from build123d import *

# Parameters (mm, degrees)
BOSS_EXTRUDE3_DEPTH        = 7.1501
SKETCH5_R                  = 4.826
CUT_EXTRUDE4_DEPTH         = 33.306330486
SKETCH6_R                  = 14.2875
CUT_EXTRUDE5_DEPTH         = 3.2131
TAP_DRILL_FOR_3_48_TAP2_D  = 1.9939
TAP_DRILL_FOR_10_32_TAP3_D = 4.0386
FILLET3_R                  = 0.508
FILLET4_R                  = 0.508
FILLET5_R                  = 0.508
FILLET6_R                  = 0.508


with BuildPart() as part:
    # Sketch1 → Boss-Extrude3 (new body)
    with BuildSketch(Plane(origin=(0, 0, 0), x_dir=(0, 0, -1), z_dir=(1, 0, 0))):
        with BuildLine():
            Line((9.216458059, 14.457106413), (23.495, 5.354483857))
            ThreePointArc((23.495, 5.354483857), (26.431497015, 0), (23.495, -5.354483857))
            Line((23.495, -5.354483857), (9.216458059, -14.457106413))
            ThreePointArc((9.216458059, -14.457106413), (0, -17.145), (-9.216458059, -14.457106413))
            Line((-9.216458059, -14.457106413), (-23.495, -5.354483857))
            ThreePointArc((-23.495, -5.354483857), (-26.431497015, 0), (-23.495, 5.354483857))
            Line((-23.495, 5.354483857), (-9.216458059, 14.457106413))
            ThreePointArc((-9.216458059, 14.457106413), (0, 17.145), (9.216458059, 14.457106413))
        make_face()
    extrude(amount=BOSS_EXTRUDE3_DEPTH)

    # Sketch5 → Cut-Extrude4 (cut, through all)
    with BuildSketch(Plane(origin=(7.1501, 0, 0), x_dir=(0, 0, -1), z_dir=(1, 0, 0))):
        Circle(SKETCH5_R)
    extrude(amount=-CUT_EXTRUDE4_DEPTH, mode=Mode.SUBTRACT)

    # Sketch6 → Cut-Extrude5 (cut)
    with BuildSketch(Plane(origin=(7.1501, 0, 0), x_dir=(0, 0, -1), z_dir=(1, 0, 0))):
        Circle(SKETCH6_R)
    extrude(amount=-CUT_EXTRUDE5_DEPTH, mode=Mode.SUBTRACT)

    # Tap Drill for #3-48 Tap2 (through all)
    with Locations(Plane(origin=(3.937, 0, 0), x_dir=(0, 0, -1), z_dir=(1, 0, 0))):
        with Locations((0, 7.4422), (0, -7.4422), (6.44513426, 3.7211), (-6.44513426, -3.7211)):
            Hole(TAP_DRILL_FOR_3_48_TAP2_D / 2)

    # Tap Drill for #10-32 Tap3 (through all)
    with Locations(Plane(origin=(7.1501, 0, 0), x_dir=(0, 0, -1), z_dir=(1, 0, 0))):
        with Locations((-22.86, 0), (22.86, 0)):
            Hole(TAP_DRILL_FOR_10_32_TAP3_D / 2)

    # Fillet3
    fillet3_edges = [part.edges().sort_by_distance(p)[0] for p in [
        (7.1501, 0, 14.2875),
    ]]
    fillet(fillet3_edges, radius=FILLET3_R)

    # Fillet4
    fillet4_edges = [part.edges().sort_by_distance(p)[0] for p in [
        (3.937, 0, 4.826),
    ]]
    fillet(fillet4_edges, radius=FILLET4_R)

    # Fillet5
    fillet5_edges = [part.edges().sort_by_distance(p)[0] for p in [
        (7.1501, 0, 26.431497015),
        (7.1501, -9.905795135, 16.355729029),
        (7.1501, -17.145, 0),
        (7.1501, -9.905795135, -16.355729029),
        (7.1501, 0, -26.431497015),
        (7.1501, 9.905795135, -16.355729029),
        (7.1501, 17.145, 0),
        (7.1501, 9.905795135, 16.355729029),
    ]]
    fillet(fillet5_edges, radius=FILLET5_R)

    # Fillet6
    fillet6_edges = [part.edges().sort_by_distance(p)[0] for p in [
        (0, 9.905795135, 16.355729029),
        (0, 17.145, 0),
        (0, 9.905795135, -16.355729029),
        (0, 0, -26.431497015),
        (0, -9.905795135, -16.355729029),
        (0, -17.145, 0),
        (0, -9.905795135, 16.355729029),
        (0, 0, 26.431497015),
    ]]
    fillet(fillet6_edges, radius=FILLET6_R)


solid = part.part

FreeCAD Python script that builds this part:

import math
import FreeCAD as App
import Part
import Sketcher
from FreeCAD import Vector
Q = App.Units.Quantity


def edges_at(feature, points):
    """Names of the edges that pass closest to the given points."""
    edges = feature.Shape.Edges
    near = lambda p: min(range(len(edges)), key=lambda i: edges[i].distToShape(Part.Vertex(*p))[0])
    return sorted({f"Edge{near(p) + 1}" for p in points})

doc = App.newDocument("Part")
body = doc.addObject("PartDesign::Body", "Body")

sketch1 = body.newObject("Sketcher::SketchObject", "Sketch")
sketch1.AttachmentSupport = (doc.getObject("YZ_Plane"), [""])
sketch1.MapMode = "FlatFace"
sketch1.addGeometry([
    Part.LineSegment(Vector(5, -23, 0), Vector(14, -9, 0)),
    Part.ArcOfCircle(Part.Circle(Vector(0, 0, 0), Vector(0, 0, 1), 17), math.radians(-33), math.radians(33)),
    Part.LineSegment(Vector(14, 9, 0), Vector(5, 23, 0)),
    Part.ArcOfCircle(Part.Circle(Vector(0, 20, 0), Vector(0, 0, 1), 6), math.radians(33), math.radians(147)),
    Part.LineSegment(Vector(-5, 23, 0), Vector(-14, 9, 0)),
    Part.ArcOfCircle(Part.Circle(Vector(0, 0, 0), Vector(0, 0, 1), 17), math.radians(147), math.radians(213)),
    Part.LineSegment(Vector(-14, -9, 0), Vector(-5, -23, 0)),
    Part.ArcOfCircle(Part.Circle(Vector(0, -20, 0), Vector(0, 0, 1), 6), math.radians(-147), math.radians(-33)),
], False)
sketch1.addConstraint([
    Sketcher.Constraint("Tangent", 0, 2, 1, 1),
    Sketcher.Constraint("Tangent", 1, 2, 2, 1),
    Sketcher.Constraint("Tangent", 2, 2, 3, 1),
    Sketcher.Constraint("Tangent", 3, 2, 4, 1),
    Sketcher.Constraint("Tangent", 4, 2, 5, 1),
    Sketcher.Constraint("Tangent", 5, 2, 6, 1),
    Sketcher.Constraint("Tangent", 6, 2, 7, 1),
    Sketcher.Constraint("Tangent", 7, 2, 0, 1),
    Sketcher.Constraint("Coincident", 1, 3, -1, 1),
    Sketcher.Constraint("Coincident", 5, 3, -1, 1),
    Sketcher.Constraint("Equal", 1, 5),
    Sketcher.Constraint("Equal", 3, 7),
    Sketcher.Constraint("Symmetric", 3, 3, 7, 3, -1, 1),
    Sketcher.Constraint("PointOnObject", 3, 3, -2),
    Sketcher.Constraint("Radius", 3, Q("0.25 in")),
    Sketcher.Constraint("Radius", 1, Q("0.675 in")),
    Sketcher.Constraint("DistanceY", -1, 1, 2, 2, Q("0.925 in")),
])
pad1 = body.newObject("PartDesign::Pad", "Pad")
pad1.Profile = sketch1
pad1.Length = Q("0.2815 in")

sketch2 = body.newObject("Sketcher::SketchObject", "Sketch001")
sketch2.AttachmentSupport = (doc.getObject("YZ_Plane"), [""])
sketch2.MapMode = "FlatFace"
sketch2.AttachmentOffset = App.Placement(Vector(0, 0, 0.2815 * 25.4), App.Rotation())
sketch2.addGeometry(Part.Circle(Vector(0, 0, 0), Vector(0, 0, 1), 4.8), False)
sketch2.addConstraint([
    Sketcher.Constraint("Coincident", 0, 3, -1, 1),
    Sketcher.Constraint("Diameter", 0, Q("0.38 in")),
])
pocket1 = body.newObject("PartDesign::Pocket", "Pocket")
pocket1.Profile = sketch2
pocket1.Type = "ThroughAll"

sketch3 = body.newObject("Sketcher::SketchObject", "Sketch002")
sketch3.AttachmentSupport = (doc.getObject("YZ_Plane"), [""])
sketch3.MapMode = "FlatFace"
sketch3.AttachmentOffset = App.Placement(Vector(0, 0, 0.2815 * 25.4), App.Rotation())
sketch3.addGeometry(Part.Circle(Vector(0, 0, 0), Vector(0, 0, 1), 14), False)
sketch3.addConstraint([
    Sketcher.Constraint("Coincident", 0, 3, -1, 1),
    Sketcher.Constraint("Diameter", 0, Q("1.125 in")),
])
pocket2 = body.newObject("PartDesign::Pocket", "Pocket001")
pocket2.Profile = sketch3
pocket2.Length = Q("0.1265 in")

sketch4 = body.newObject("Sketcher::SketchObject", "Sketch003")
sketch4.AttachmentSupport = (doc.getObject("YZ_Plane"), [""])
sketch4.MapMode = "FlatFace"
sketch4.AttachmentOffset = App.Placement(Vector(0, 0, 0.155 * 25.4), App.Rotation())
sketch4.addGeometry([
    Part.Circle(Vector(7.4, 0, 0), Vector(0, 0, 1), 1),
    Part.Circle(Vector(-7.4, 0, 0), Vector(0, 0, 1), 1),
    Part.Circle(Vector(3.7, -6.4, 0), Vector(0, 0, 1), 1),
    Part.Circle(Vector(-3.7, 6.4, 0), Vector(0, 0, 1), 1),
], False)
sketch4.addConstraint([
    Sketcher.Constraint("Equal", 0, 1),
    Sketcher.Constraint("Equal", 1, 2),
    Sketcher.Constraint("Equal", 2, 3),
    Sketcher.Constraint("Symmetric", 0, 3, 1, 3, -1, 1),
    Sketcher.Constraint("Symmetric", 2, 3, 3, 3, -1, 1),
    Sketcher.Constraint("PointOnObject", 0, 3, -1),
    Sketcher.Constraint("Diameter", 0, Q("0.0785 in")),
    Sketcher.Constraint("DistanceX", -1, 1, 0, 3, Q("0.293 in")),
    Sketcher.Constraint("DistanceX", 3, 3, 2, 3, Q("0.293 in")),
    Sketcher.Constraint("DistanceY", 2, 3, 3, 3, 12.890269),
])
doc.recompute()
hole = body.newObject("PartDesign::Hole", "Hole")
hole.Profile = sketch4
hole.ThreadType = "None"
hole.Diameter = Q("0.0785 in")
hole.DepthType = "ThroughAll"

sketch5 = body.newObject("Sketcher::SketchObject", "Sketch004")
sketch5.AttachmentSupport = (doc.getObject("YZ_Plane"), [""])
sketch5.MapMode = "FlatFace"
sketch5.AttachmentOffset = App.Placement(Vector(0, 0, 0.2815 * 25.4), App.Rotation())
sketch5.addGeometry([
    Part.Circle(Vector(0, 22.9, 0), Vector(0, 0, 1), 2),
    Part.Circle(Vector(0, -22.9, 0), Vector(0, 0, 1), 2),
], False)
sketch5.addConstraint([
    Sketcher.Constraint("Equal", 0, 1),
    Sketcher.Constraint("Symmetric", 0, 3, 1, 3, -1, 1),
    Sketcher.Constraint("PointOnObject", 0, 3, -2),
    Sketcher.Constraint("Diameter", 0, Q("0.159 in")),
    Sketcher.Constraint("DistanceY", -1, 1, 0, 3, Q("0.9 in")),
])
doc.recompute()
hole2 = body.newObject("PartDesign::Hole", "Hole001")
hole2.Profile = sketch5
hole2.ThreadType = "None"
hole2.Diameter = Q("0.159 in")
hole2.DepthType = "ThroughAll"
doc.recompute()

fillet = body.newObject("PartDesign::Fillet", "Fillet")
fillet.Base = (hole2, edges_at(hole2, [(7.15, 0, 14.287)]))
fillet.Radius = Q("0.02 in")
doc.recompute()

fillet2 = body.newObject("PartDesign::Fillet", "Fillet001")
fillet2.Base = (fillet, edges_at(fillet, [(3.937, 0, 4.826)]))
fillet2.Radius = Q("0.02 in")
doc.recompute()

fillet3 = body.newObject("PartDesign::Fillet", "Fillet002")
fillet3.Base = (fillet2, edges_at(fillet2, [
    (7.15, 0, 26.431),
    (7.15, -9.906, 16.356),
    (7.15, -17.145, 0),
    (7.15, -9.906, -16.356),
    (7.15, 0, -26.431),
    (7.15, 9.906, -16.356),
    (7.15, 17.145, 0),
    (7.15, 9.906, 16.356),
]))
fillet3.Radius = Q("0.02 in")
doc.recompute()

fillet4 = body.newObject("PartDesign::Fillet", "Fillet003")
fillet4.Base = (fillet3, edges_at(fillet3, [
    (0, 9.906, 16.356),
    (0, 17.145, 0),
    (0, 9.906, -16.356),
    (0, 0, -26.431),
    (0, -9.906, -16.356),
    (0, -17.145, 0),
    (0, -9.906, 16.356),
    (0, 0, 26.431),
]))
fillet4.Radius = Q("0.02 in")

doc.recompute()
